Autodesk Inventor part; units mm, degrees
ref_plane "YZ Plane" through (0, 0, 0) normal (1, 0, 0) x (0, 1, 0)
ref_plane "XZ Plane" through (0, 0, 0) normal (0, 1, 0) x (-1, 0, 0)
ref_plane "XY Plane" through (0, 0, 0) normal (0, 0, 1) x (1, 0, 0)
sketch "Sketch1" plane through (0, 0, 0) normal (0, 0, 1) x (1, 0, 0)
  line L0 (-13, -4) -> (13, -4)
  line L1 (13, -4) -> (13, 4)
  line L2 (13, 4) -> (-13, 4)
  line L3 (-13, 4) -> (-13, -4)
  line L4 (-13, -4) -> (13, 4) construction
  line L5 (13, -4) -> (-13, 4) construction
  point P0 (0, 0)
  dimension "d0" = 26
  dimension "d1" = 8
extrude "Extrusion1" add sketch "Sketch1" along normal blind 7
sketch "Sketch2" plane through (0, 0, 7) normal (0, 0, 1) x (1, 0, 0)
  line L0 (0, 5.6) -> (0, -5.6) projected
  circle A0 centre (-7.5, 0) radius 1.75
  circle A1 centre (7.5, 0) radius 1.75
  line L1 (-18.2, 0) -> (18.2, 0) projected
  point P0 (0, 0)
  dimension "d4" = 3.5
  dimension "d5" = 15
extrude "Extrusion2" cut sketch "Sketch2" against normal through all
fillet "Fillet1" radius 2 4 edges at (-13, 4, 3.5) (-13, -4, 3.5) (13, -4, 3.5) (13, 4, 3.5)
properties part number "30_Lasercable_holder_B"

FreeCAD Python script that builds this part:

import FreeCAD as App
import Part
import Sketcher
Q = App.Units.Quantity


def edges_at(feature, points):
    """Names of the edges that pass closest to the given points."""
    edges = feature.Shape.Edges
    near = lambda p: min(range(len(edges)), key=lambda i: edges[i].distToShape(Part.Vertex(*p))[0])
    return sorted({f"Edge{near(p) + 1}" for p in points})


def add_polygon(sketch, points):
    """Adds a closed chain of lines whose ends are joined by coincident constraints."""
    first, n = sketch.GeometryCount, len(points)
    for a, b in zip(points, points[1:] + points[:1]):
        sketch.addGeometry(Part.LineSegment(App.Vector(*a, 0), App.Vector(*b, 0)), False)
    for i in range(n):
        sketch.addConstraint(Sketcher.Constraint("Coincident", first + i, 2, first + (i + 1) % n, 1))

doc = App.newDocument("Part")
body = doc.addObject("PartDesign::Body", "Body")

# Sketch on XY plane
sketch1 = body.newObject("Sketcher::SketchObject", "Sketch")
sketch1.AttachmentSupport = (doc.getObject("XY_Plane"), [""])
sketch1.MapMode = "FlatFace"
add_polygon(sketch1, [(-13, 4), (-13, -4), (13, -4), (13, 4)])  # lines 0-3
sketch1.addConstraint([
    Sketcher.Constraint("Vertical", 0),
    Sketcher.Constraint("Horizontal", 1),
    Sketcher.Constraint("Vertical", 2),
    Sketcher.Constraint("Horizontal", 3),
    Sketcher.Constraint("Symmetric", 0, 2, 2, 2, -1, 1),
    Sketcher.Constraint("DistanceX", 1, 1, 1, 2, Q("26 mm")),
    Sketcher.Constraint("DistanceY", 0, 2, 0, 1, Q("8 mm")),
])
pad1 = body.newObject("PartDesign::Pad", "Pad")
pad1.Profile = sketch1
pad1.Length = 7

# Sketch on XY plane
sketch2 = body.newObject("Sketcher::SketchObject", "Sketch001")
sketch2.AttachmentSupport = (doc.getObject("XY_Plane"), [""])
sketch2.MapMode = "FlatFace"
sketch2.AttachmentOffset = App.Placement(App.Vector(0, 0, 7), App.Rotation())
sketch2.addGeometry([
    Part.Circle(App.Vector(-7.5, 0, 0), App.Vector(0, 0, 1), 1.75),
    Part.Circle(App.Vector(7.5, 0, 0), App.Vector(0, 0, 1), 1.75),
], False)
sketch2.addConstraint([
    Sketcher.Constraint("Equal", 0, 1),
    Sketcher.Constraint("Symmetric", 0, 3, 1, 3, -1, 1),
    Sketcher.Constraint("PointOnObject", 0, 3, -1),
    Sketcher.Constraint("Diameter", 0, Q("3.5 mm")),
    Sketcher.Constraint("DistanceX", 0, 3, 1, 3, Q("15 mm")),
])
pocket1 = body.newObject("PartDesign::Pocket", "Pocket")
pocket1.Profile = sketch2
pocket1.Type = "ThroughAll"
doc.recompute()

fillet = body.newObject("PartDesign::Fillet", "Fillet")
fillet.Base = (pocket1, edges_at(pocket1, [
    (-13, 4, 3.5),
    (-13, -4, 3.5),
    (13, -4, 3.5),
    (13, 4, 3.5),
]))
fillet.Radius = 2

doc.recompute()
